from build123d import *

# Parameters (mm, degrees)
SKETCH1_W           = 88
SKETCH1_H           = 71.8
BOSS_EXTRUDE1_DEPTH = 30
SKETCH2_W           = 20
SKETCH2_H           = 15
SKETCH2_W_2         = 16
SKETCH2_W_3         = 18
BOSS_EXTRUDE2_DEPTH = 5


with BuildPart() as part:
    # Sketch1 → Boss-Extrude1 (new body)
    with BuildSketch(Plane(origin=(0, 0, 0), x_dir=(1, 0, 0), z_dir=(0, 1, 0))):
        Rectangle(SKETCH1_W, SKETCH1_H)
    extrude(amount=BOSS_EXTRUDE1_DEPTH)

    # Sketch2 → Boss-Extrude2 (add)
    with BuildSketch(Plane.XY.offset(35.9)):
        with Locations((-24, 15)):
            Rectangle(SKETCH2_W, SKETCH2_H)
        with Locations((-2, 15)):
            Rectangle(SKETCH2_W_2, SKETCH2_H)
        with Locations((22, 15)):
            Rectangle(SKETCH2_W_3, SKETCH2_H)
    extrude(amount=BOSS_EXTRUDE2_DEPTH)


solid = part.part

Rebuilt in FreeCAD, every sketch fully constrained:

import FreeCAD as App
import Part
import Sketcher


def add_polygon(sketch, points):
    """Adds a closed chain of lines whose ends are joined by coincident constraints."""
    first, n = sketch.GeometryCount, len(points)
    for a, b in zip(points, points[1:] + points[:1]):
        sketch.addGeometry(Part.LineSegment(App.Vector(*a, 0), App.Vector(*b, 0)), False)
    for i in range(n):
        sketch.addConstraint(Sketcher.Constraint("Coincident", first + i, 2, first + (i + 1) % n, 1))

doc = App.newDocument("Part")
body = doc.addObject("PartDesign::Body", "Body")

# Sketch on XZ plane
sketch1 = body.newObject("Sketcher::SketchObject", "Sketch")
sketch1.AttachmentSupport = (doc.getObject("XZ_Plane"), [""])
sketch1.MapMode = "FlatFace"
add_polygon(sketch1, [(-44, -36), (-44, 36), (44, 36), (44, -36)])  # lines 0-3
sketch1.addConstraint(Sketcher.Constraint("Vertical", 0))
sketch1.addConstraint(Sketcher.Constraint("Horizontal", 1))
sketch1.addConstraint(Sketcher.Constraint("Vertical", 2))
sketch1.addConstraint(Sketcher.Constraint("Horizontal", 3))
sketch1.addConstraint(Sketcher.Constraint("Symmetric", 0, 2, 2, 2, -1, 1))
sketch1.addConstraint(Sketcher.Constraint("DistanceX", 1, 1, 1, 2, 88.0))
sketch1.addConstraint(Sketcher.Constraint("DistanceY", 0, 1, 0, 2, 71.8))
pad1 = body.newObject("PartDesign::Pad", "Pad")
pad1.Profile = sketch1
pad1.Length = 30
pad1.Reversed = True

# Sketch on XY plane
sketch2 = body.newObject("Sketcher::SketchObject", "Sketch001")
sketch2.AttachmentSupport = (doc.getObject("XY_Plane"), [""])
sketch2.MapMode = "FlatFace"
sketch2.AttachmentOffset = App.Placement(App.Vector(0, 0, 35.9), App.Rotation())
add_polygon(sketch2, [(-34, 22), (-34, 8), (-14, 8), (-14, 22)])  # lines 0-3
add_polygon(sketch2, [(-10, 22), (-10, 8), (6, 8), (6, 22)])  # lines 4-7
add_polygon(sketch2, [(13, 22), (13, 8), (31, 8), (31, 22)])  # lines 8-11
sketch2.addConstraint(Sketcher.Constraint("Vertical", 0))
sketch2.addConstraint(Sketcher.Constraint("Horizontal", 1))
sketch2.addConstraint(Sketcher.Constraint("Vertical", 2))
sketch2.addConstraint(Sketcher.Constraint("Horizontal", 3))
sketch2.addConstraint(Sketcher.Constraint("Vertical", 4))
sketch2.addConstraint(Sketcher.Constraint("Horizontal", 5))
sketch2.addConstraint(Sketcher.Constraint("Vertical", 6))
sketch2.addConstraint(Sketcher.Constraint("Horizontal", 7))
sketch2.addConstraint(Sketcher.Constraint("Vertical", 8))
sketch2.addConstraint(Sketcher.Constraint("Horizontal", 9))
sketch2.addConstraint(Sketcher.Constraint("Vertical", 10))
sketch2.addConstraint(Sketcher.Constraint("Horizontal", 11))
sketch2.addConstraint(Sketcher.Constraint("Horizontal", 1, 2, 4, 2))
sketch2.addConstraint(Sketcher.Constraint("Horizontal", 3, 2, 6, 2))
sketch2.addConstraint(Sketcher.Constraint("Horizontal", 5, 2, 8, 2))
sketch2.addConstraint(Sketcher.Constraint("Horizontal", 7, 2, 10, 2))
sketch2.addConstraint(Sketcher.Constraint("DistanceX", 1, 1, 1, 2, 20.0))
sketch2.addConstraint(Sketcher.Constraint("DistanceX", 5, 1, 5, 2, 16.0))
sketch2.addConstraint(Sketcher.Constraint("DistanceX", 9, 1, 9, 2, 18.0))
sketch2.addConstraint(Sketcher.Constraint("DistanceY", 0, 2, 0, 1, 15.0))
sketch2.addConstraint(Sketcher.Constraint("DistanceX", 0, 2, -1, 1, 34.0))
sketch2.addConstraint(Sketcher.Constraint("DistanceX", 4, 2, -1, 1, 10.0))
sketch2.addConstraint(Sketcher.Constraint("DistanceX", -1, 1, 8, 2, 13.0))
sketch2.addConstraint(Sketcher.Constraint("DistanceY", -1, 1, 0, 2, 7.5))
pad2 = body.newObject("PartDesign::Pad", "Pad001")
pad2.Profile = sketch2
pad2.Length = 5

doc.recompute()
